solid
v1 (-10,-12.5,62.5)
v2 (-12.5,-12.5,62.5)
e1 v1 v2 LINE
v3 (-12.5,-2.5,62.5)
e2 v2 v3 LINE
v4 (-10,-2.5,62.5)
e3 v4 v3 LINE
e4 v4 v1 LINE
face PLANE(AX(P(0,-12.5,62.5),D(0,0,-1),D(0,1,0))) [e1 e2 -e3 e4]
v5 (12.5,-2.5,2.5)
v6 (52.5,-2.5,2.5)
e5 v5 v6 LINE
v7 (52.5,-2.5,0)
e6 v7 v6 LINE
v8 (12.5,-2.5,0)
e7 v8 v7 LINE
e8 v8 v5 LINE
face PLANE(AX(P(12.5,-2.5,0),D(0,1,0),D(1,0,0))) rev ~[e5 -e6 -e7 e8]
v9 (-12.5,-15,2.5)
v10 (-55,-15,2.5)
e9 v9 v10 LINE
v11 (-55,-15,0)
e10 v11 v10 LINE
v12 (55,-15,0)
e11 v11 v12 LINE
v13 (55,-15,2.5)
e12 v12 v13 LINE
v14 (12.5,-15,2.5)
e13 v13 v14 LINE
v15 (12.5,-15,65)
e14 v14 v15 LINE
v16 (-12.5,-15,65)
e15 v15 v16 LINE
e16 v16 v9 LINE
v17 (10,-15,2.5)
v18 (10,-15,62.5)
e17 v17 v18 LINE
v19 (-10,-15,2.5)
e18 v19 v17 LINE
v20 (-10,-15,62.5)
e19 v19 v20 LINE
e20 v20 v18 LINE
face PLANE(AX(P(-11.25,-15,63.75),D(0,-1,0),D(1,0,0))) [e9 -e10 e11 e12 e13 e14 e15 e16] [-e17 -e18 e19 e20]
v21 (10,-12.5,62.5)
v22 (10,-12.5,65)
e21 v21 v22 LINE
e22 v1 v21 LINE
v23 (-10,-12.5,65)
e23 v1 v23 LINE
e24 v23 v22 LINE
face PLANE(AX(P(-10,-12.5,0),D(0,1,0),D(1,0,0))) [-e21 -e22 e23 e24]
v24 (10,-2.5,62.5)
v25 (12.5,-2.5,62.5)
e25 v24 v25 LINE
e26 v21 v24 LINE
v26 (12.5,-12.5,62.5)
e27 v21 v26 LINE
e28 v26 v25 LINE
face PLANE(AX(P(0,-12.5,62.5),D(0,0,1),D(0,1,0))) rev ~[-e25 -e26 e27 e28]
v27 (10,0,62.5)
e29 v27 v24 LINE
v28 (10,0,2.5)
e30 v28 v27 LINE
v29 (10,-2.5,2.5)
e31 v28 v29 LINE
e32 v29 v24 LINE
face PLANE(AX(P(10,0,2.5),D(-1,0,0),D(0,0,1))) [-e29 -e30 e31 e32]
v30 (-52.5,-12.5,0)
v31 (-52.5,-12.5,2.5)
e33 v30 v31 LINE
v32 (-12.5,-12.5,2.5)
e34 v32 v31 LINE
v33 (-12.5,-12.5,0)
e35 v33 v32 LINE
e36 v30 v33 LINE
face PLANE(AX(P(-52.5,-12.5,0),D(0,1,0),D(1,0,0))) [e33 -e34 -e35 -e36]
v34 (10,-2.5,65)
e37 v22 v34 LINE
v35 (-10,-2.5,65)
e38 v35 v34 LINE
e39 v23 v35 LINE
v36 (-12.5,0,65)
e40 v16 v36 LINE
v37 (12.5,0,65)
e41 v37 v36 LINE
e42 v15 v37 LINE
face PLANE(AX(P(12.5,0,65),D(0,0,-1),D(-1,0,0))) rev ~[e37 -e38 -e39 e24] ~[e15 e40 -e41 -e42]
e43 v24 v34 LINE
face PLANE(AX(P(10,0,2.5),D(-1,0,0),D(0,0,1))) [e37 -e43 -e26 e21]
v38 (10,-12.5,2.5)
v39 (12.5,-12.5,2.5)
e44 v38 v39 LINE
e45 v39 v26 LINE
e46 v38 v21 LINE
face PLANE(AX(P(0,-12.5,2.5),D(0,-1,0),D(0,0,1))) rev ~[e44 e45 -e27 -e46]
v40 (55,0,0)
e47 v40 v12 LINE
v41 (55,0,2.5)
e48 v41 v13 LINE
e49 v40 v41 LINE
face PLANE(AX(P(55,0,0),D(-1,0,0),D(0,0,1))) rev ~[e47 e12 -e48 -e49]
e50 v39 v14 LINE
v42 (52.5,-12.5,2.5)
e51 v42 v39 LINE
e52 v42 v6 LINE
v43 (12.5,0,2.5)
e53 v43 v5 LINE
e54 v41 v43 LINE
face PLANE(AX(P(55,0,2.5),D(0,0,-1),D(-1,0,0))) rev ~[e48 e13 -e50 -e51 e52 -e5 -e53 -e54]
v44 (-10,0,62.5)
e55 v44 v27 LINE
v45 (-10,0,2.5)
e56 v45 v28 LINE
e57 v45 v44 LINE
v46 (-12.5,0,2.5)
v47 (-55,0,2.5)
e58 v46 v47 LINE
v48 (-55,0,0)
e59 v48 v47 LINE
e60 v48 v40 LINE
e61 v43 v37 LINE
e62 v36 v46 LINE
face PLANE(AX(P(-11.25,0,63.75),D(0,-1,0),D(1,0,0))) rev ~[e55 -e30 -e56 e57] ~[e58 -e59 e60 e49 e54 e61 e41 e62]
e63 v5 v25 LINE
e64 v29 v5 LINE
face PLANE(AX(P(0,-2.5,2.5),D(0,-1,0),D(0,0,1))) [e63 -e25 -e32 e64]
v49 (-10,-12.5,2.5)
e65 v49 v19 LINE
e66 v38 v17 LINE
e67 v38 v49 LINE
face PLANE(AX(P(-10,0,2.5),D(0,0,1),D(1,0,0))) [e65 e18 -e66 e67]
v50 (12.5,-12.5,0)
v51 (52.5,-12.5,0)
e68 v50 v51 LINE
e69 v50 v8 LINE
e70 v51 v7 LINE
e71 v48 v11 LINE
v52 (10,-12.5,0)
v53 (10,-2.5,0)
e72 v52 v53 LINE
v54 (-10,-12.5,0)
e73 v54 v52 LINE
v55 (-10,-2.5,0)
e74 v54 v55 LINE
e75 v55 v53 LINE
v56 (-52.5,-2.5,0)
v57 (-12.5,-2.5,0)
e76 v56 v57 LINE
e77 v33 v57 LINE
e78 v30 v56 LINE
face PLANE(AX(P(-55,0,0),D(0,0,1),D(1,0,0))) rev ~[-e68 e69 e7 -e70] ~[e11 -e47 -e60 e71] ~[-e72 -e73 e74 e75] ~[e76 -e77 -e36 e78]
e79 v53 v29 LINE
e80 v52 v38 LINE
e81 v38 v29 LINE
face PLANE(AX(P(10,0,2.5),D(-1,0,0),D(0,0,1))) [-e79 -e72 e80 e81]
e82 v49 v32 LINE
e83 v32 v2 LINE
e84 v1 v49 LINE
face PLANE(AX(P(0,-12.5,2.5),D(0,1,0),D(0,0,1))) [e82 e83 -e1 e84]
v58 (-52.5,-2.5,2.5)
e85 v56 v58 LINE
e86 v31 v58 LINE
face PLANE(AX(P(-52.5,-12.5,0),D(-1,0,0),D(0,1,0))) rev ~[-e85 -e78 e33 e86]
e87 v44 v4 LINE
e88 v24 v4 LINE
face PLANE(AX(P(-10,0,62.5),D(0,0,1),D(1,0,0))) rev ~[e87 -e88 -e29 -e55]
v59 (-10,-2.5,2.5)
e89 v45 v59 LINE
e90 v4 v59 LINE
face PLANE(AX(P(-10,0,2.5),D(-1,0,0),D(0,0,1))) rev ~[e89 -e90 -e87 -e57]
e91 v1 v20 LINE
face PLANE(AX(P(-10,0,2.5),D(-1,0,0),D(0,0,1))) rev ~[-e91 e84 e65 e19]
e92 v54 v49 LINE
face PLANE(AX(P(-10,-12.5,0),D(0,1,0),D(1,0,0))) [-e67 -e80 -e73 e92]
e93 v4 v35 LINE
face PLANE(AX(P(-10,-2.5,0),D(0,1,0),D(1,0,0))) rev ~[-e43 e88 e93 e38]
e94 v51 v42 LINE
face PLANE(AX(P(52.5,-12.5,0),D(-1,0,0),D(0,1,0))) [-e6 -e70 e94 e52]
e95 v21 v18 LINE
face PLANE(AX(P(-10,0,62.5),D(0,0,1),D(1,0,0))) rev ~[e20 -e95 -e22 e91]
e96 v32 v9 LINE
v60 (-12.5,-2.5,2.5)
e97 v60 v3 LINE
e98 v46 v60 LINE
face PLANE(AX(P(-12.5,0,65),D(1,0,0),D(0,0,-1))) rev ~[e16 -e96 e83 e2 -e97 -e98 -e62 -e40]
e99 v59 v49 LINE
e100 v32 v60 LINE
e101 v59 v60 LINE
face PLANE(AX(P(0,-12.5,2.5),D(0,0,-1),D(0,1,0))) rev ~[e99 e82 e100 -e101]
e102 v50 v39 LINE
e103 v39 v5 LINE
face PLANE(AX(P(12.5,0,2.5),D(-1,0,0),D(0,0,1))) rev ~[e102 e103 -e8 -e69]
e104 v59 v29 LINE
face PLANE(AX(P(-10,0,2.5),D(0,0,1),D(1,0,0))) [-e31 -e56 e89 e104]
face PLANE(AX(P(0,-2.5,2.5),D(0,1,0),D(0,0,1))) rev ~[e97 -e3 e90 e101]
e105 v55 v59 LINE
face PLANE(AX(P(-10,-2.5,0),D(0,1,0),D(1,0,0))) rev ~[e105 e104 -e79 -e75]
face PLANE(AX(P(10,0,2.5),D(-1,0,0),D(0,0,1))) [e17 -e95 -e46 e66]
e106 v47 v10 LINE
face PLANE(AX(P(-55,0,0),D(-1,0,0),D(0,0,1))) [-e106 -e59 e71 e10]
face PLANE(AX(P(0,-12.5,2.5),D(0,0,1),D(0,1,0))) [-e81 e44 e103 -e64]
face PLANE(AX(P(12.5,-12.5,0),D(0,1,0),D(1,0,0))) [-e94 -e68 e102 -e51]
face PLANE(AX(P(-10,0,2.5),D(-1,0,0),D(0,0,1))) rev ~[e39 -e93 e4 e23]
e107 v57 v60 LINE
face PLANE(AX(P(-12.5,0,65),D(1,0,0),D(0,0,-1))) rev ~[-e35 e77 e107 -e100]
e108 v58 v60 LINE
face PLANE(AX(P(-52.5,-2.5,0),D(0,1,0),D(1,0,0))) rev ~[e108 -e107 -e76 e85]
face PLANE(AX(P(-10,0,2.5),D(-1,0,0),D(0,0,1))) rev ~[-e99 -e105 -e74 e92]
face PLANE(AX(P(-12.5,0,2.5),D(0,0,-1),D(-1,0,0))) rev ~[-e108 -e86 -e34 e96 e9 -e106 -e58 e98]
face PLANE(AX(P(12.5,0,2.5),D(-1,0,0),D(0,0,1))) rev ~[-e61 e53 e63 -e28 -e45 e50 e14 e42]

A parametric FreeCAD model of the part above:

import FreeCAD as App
import Part
import Sketcher

doc = App.newDocument("Part")
body = doc.addObject("PartDesign::Body", "Body")

# Sketch on XZ plane
sketch1 = doc.addObject("Sketcher::SketchObject", "Sketch")
body.addObject(sketch1)
sketch1.AttachmentSupport = (doc.XZ_Plane, [""])
sketch1.MapMode = "FlatFace"
sketch1.addGeometry(Part.LineSegment(App.Vector(-12.5, 65, 0), App.Vector(-12.5, 2.5, 0)), False)
sketch1.addGeometry(Part.LineSegment(App.Vector(-12.5, 2.5, 0), App.Vector(-55, 2.5, 0)), False)
sketch1.addGeometry(Part.LineSegment(App.Vector(-55, 2.5, 0), App.Vector(-55, 0, 0)), False)
sketch1.addGeometry(Part.LineSegment(App.Vector(-55, 0, 0), App.Vector(55, 0, 0)), False)
sketch1.addGeometry(Part.LineSegment(App.Vector(55, 0, 0), App.Vector(55, 2.5, 0)), False)
sketch1.addGeometry(Part.LineSegment(App.Vector(55, 2.5, 0), App.Vector(12.5, 2.5, 0)), False)
sketch1.addGeometry(Part.LineSegment(App.Vector(12.5, 2.5, 0), App.Vector(12.5, 65, 0)), False)
sketch1.addGeometry(Part.LineSegment(App.Vector(12.5, 65, 0), App.Vector(-12.5, 65, 0)), False)
sketch1.addGeometry(Part.LineSegment(App.Vector(10, 2.5, 0), App.Vector(-10, 2.5, 0)), False)
sketch1.addGeometry(Part.LineSegment(App.Vector(-10, 2.5, 0), App.Vector(-10, 62.5, 0)), False)
sketch1.addGeometry(Part.LineSegment(App.Vector(-10, 62.5, 0), App.Vector(10, 62.5, 0)), False)
sketch1.addGeometry(Part.LineSegment(App.Vector(10, 62.5, 0), App.Vector(10, 2.5, 0)), False)
sketch1.addConstraint(Sketcher.Constraint("Coincident", 0, 2, 1, 1))
sketch1.addConstraint(Sketcher.Constraint("Coincident", 1, 2, 2, 1))
sketch1.addConstraint(Sketcher.Constraint("Coincident", 2, 2, 3, 1))
sketch1.addConstraint(Sketcher.Constraint("Coincident", 3, 2, 4, 1))
sketch1.addConstraint(Sketcher.Constraint("Coincident", 4, 2, 5, 1))
sketch1.addConstraint(Sketcher.Constraint("Coincident", 5, 2, 6, 1))
sketch1.addConstraint(Sketcher.Constraint("Coincident", 6, 2, 7, 1))
sketch1.addConstraint(Sketcher.Constraint("Coincident", 7, 2, 0, 1))
sketch1.addConstraint(Sketcher.Constraint("Coincident", 8, 2, 9, 1))
sketch1.addConstraint(Sketcher.Constraint("Coincident", 9, 2, 10, 1))
sketch1.addConstraint(Sketcher.Constraint("Coincident", 10, 2, 11, 1))
sketch1.addConstraint(Sketcher.Constraint("Coincident", 11, 2, 8, 1))
sketch1.addConstraint(Sketcher.Constraint("Vertical", 0))
sketch1.addConstraint(Sketcher.Constraint("Horizontal", 1))
sketch1.addConstraint(Sketcher.Constraint("Vertical", 2))
sketch1.addConstraint(Sketcher.Constraint("Horizontal", 3))
sketch1.addConstraint(Sketcher.Constraint("Vertical", 4))
sketch1.addConstraint(Sketcher.Constraint("Horizontal", 5))
sketch1.addConstraint(Sketcher.Constraint("Vertical", 6))
sketch1.addConstraint(Sketcher.Constraint("Horizontal", 7))
sketch1.addConstraint(Sketcher.Constraint("Horizontal", 8))
sketch1.addConstraint(Sketcher.Constraint("Vertical", 9))
sketch1.addConstraint(Sketcher.Constraint("Horizontal", 10))
sketch1.addConstraint(Sketcher.Constraint("Vertical", 11))
sketch1.addConstraint(Sketcher.Constraint("Symmetric", 2, 2, 3, 2, -1, 1))
sketch1.addConstraint(Sketcher.Constraint("Symmetric", 0, 2, 5, 2, -2))
sketch1.addConstraint(Sketcher.Constraint("Horizontal", 5, 2, 8, 2))
sketch1.addConstraint(Sketcher.Constraint("DistanceX", 3, 1, 3, 2, 110.0))
sketch1.addConstraint(Sketcher.Constraint("DistanceX", 7, 2, 7, 1, 25.0))
sketch1.addConstraint(Sketcher.Constraint("DistanceX", 8, 2, 8, 1, 20.0))
sketch1.addConstraint(Sketcher.Constraint("DistanceY", 9, 1, 9, 2, 60.0))
sketch1.addConstraint(Sketcher.Constraint("DistanceY", 0, 2, 0, 1, 62.5))
sketch1.addConstraint(Sketcher.Constraint("DistanceY", 2, 2, 2, 1, 2.5))
sketch1.addConstraint(Sketcher.Constraint("DistanceX", 8, 2, -1, 1, 10.0))
pad1 = doc.addObject("PartDesign::Pad", "Pad")
body.addObject(pad1)
pad1.Profile = sketch1
pad1.Length = 15

# Sketch on XY plane
sketch2 = doc.addObject("Sketcher::SketchObject", "Sketch001")
body.addObject(sketch2)
sketch2.AttachmentSupport = (doc.XY_Plane, [""])
sketch2.MapMode = "FlatFace"
sketch2.addGeometry(Part.LineSegment(App.Vector(-10, -2.5, 0), App.Vector(-10, -12.5, 0)), False)
sketch2.addGeometry(Part.LineSegment(App.Vector(-10, -12.5, 0), App.Vector(10, -12.5, 0)), False)
sketch2.addGeometry(Part.LineSegment(App.Vector(10, -12.5, 0), App.Vector(10, -2.5, 0)), False)
sketch2.addGeometry(Part.LineSegment(App.Vector(10, -2.5, 0), App.Vector(-10, -2.5, 0)), False)
sketch2.addGeometry(Part.LineSegment(App.Vector(12.5, -2.5, 0), App.Vector(12.5, -12.5, 0)), False)
sketch2.addGeometry(Part.LineSegment(App.Vector(12.5, -12.5, 0), App.Vector(52.5, -12.5, 0)), False)
sketch2.addGeometry(Part.LineSegment(App.Vector(52.5, -12.5, 0), App.Vector(52.5, -2.5, 0)), False)
sketch2.addGeometry(Part.LineSegment(App.Vector(52.5, -2.5, 0), App.Vector(12.5, -2.5, 0)), False)
sketch2.addGeometry(Part.LineSegment(App.Vector(-52.5, -2.5, 0), App.Vector(-52.5, -12.5, 0)), False)
sketch2.addGeometry(Part.LineSegment(App.Vector(-52.5, -12.5, 0), App.Vector(-12.5, -12.5, 0)), False)
sketch2.addGeometry(Part.LineSegment(App.Vector(-12.5, -12.5, 0), App.Vector(-12.5, -2.5, 0)), False)
sketch2.addGeometry(Part.LineSegment(App.Vector(-12.5, -2.5, 0), App.Vector(-52.5, -2.5, 0)), False)
sketch2.addConstraint(Sketcher.Constraint("Coincident", 0, 2, 1, 1))
sketch2.addConstraint(Sketcher.Constraint("Coincident", 1, 2, 2, 1))
sketch2.addConstraint(Sketcher.Constraint("Coincident", 2, 2, 3, 1))
sketch2.addConstraint(Sketcher.Constraint("Coincident", 3, 2, 0, 1))
sketch2.addConstraint(Sketcher.Constraint("Coincident", 4, 2, 5, 1))
sketch2.addConstraint(Sketcher.Constraint("Coincident", 5, 2, 6, 1))
sketch2.addConstraint(Sketcher.Constraint("Coincident", 6, 2, 7, 1))
sketch2.addConstraint(Sketcher.Constraint("Coincident", 7, 2, 4, 1))
sketch2.addConstraint(Sketcher.Constraint("Coincident", 8, 2, 9, 1))
sketch2.addConstraint(Sketcher.Constraint("Coincident", 9, 2, 10, 1))
sketch2.addConstraint(Sketcher.Constraint("Coincident", 10, 2, 11, 1))
sketch2.addConstraint(Sketcher.Constraint("Coincident", 11, 2, 8, 1))
sketch2.addConstraint(Sketcher.Constraint("Vertical", 0))
sketch2.addConstraint(Sketcher.Constraint("Horizontal", 1))
sketch2.addConstraint(Sketcher.Constraint("Vertical", 2))
sketch2.addConstraint(Sketcher.Constraint("Horizontal", 3))
sketch2.addConstraint(Sketcher.Constraint("Vertical", 4))
sketch2.addConstraint(Sketcher.Constraint("Horizontal", 5))
sketch2.addConstraint(Sketcher.Constraint("Vertical", 6))
sketch2.addConstraint(Sketcher.Constraint("Horizontal", 7))
sketch2.addConstraint(Sketcher.Constraint("Vertical", 8))
sketch2.addConstraint(Sketcher.Constraint("Horizontal", 9))
sketch2.addConstraint(Sketcher.Constraint("Vertical", 10))
sketch2.addConstraint(Sketcher.Constraint("Horizontal", 11))
sketch2.addConstraint(Sketcher.Constraint("Symmetric", 5, 2, 8, 2, -2))
sketch2.addConstraint(Sketcher.Constraint("Symmetric", 7, 2, 10, 2, -2))
sketch2.addConstraint(Sketcher.Constraint("Horizontal", 1, 2, 4, 2))
sketch2.addConstraint(Sketcher.Constraint("Horizontal", 3, 2, 6, 2))
sketch2.addConstraint(Sketcher.Constraint("DistanceX", 1, 1, 1, 2, 20.0))
sketch2.addConstraint(Sketcher.Constraint("DistanceX", 5, 1, 5, 2, 40.0))
sketch2.addConstraint(Sketcher.Constraint("DistanceY", 0, 2, 0, 1, 10.0))
sketch2.addConstraint(Sketcher.Constraint("DistanceX", 0, 2, -1, 1, 10.0))
sketch2.addConstraint(Sketcher.Constraint("DistanceX", 8, 2, 4, 2, 65.0))
sketch2.addConstraint(Sketcher.Constraint("DistanceY", 0, 2, -1, 1, 12.5))
pocket1 = doc.addObject("PartDesign::Pocket", "Pocket")
body.addObject(pocket1)
pocket1.Profile = sketch2
pocket1.Length = 70
pocket1.Reversed = True

# Sketch on YZ plane
sketch3 = doc.addObject("Sketcher::SketchObject", "Sketch002")
body.addObject(sketch3)
sketch3.AttachmentSupport = (doc.YZ_Plane, [""])
sketch3.MapMode = "FlatFace"
sketch3.addGeometry(Part.LineSegment(App.Vector(-12.5, 62.5, 0), App.Vector(-12.5, 2.5, 0)), False)
sketch3.addGeometry(Part.LineSegment(App.Vector(-12.5, 2.5, 0), App.Vector(-2.5, 2.5, 0)), False)
sketch3.addGeometry(Part.LineSegment(App.Vector(-2.5, 2.5, 0), App.Vector(-2.5, 62.5, 0)), False)
sketch3.addGeometry(Part.LineSegment(App.Vector(-2.5, 62.5, 0), App.Vector(-12.5, 62.5, 0)), False)
sketch3.addConstraint(Sketcher.Constraint("Coincident", 0, 2, 1, 1))
sketch3.addConstraint(Sketcher.Constraint("Coincident", 1, 2, 2, 1))
sketch3.addConstraint(Sketcher.Constraint("Coincident", 2, 2, 3, 1))
sketch3.addConstraint(Sketcher.Constraint("Coincident", 3, 2, 0, 1))
sketch3.addConstraint(Sketcher.Constraint("Vertical", 0))
sketch3.addConstraint(Sketcher.Constraint("Horizontal", 1))
sketch3.addConstraint(Sketcher.Constraint("Vertical", 2))
sketch3.addConstraint(Sketcher.Constraint("Horizontal", 3))
sketch3.addConstraint(Sketcher.Constraint("DistanceX", 1, 1, 1, 2, 10.0))
sketch3.addConstraint(Sketcher.Constraint("DistanceY", 0, 2, 0, 1, 60.0))
sketch3.addConstraint(Sketcher.Constraint("DistanceX", 0, 2, -1, 1, 12.5))
sketch3.addConstraint(Sketcher.Constraint("DistanceY", -1, 1, 0, 2, 2.5))
pocket2 = doc.addObject("PartDesign::Pocket", "Pocket001")
body.addObject(pocket2)
pocket2.Profile = sketch3
pocket2.Type = "ThroughAll"
pocket2.Midplane = True

doc.recompute()
